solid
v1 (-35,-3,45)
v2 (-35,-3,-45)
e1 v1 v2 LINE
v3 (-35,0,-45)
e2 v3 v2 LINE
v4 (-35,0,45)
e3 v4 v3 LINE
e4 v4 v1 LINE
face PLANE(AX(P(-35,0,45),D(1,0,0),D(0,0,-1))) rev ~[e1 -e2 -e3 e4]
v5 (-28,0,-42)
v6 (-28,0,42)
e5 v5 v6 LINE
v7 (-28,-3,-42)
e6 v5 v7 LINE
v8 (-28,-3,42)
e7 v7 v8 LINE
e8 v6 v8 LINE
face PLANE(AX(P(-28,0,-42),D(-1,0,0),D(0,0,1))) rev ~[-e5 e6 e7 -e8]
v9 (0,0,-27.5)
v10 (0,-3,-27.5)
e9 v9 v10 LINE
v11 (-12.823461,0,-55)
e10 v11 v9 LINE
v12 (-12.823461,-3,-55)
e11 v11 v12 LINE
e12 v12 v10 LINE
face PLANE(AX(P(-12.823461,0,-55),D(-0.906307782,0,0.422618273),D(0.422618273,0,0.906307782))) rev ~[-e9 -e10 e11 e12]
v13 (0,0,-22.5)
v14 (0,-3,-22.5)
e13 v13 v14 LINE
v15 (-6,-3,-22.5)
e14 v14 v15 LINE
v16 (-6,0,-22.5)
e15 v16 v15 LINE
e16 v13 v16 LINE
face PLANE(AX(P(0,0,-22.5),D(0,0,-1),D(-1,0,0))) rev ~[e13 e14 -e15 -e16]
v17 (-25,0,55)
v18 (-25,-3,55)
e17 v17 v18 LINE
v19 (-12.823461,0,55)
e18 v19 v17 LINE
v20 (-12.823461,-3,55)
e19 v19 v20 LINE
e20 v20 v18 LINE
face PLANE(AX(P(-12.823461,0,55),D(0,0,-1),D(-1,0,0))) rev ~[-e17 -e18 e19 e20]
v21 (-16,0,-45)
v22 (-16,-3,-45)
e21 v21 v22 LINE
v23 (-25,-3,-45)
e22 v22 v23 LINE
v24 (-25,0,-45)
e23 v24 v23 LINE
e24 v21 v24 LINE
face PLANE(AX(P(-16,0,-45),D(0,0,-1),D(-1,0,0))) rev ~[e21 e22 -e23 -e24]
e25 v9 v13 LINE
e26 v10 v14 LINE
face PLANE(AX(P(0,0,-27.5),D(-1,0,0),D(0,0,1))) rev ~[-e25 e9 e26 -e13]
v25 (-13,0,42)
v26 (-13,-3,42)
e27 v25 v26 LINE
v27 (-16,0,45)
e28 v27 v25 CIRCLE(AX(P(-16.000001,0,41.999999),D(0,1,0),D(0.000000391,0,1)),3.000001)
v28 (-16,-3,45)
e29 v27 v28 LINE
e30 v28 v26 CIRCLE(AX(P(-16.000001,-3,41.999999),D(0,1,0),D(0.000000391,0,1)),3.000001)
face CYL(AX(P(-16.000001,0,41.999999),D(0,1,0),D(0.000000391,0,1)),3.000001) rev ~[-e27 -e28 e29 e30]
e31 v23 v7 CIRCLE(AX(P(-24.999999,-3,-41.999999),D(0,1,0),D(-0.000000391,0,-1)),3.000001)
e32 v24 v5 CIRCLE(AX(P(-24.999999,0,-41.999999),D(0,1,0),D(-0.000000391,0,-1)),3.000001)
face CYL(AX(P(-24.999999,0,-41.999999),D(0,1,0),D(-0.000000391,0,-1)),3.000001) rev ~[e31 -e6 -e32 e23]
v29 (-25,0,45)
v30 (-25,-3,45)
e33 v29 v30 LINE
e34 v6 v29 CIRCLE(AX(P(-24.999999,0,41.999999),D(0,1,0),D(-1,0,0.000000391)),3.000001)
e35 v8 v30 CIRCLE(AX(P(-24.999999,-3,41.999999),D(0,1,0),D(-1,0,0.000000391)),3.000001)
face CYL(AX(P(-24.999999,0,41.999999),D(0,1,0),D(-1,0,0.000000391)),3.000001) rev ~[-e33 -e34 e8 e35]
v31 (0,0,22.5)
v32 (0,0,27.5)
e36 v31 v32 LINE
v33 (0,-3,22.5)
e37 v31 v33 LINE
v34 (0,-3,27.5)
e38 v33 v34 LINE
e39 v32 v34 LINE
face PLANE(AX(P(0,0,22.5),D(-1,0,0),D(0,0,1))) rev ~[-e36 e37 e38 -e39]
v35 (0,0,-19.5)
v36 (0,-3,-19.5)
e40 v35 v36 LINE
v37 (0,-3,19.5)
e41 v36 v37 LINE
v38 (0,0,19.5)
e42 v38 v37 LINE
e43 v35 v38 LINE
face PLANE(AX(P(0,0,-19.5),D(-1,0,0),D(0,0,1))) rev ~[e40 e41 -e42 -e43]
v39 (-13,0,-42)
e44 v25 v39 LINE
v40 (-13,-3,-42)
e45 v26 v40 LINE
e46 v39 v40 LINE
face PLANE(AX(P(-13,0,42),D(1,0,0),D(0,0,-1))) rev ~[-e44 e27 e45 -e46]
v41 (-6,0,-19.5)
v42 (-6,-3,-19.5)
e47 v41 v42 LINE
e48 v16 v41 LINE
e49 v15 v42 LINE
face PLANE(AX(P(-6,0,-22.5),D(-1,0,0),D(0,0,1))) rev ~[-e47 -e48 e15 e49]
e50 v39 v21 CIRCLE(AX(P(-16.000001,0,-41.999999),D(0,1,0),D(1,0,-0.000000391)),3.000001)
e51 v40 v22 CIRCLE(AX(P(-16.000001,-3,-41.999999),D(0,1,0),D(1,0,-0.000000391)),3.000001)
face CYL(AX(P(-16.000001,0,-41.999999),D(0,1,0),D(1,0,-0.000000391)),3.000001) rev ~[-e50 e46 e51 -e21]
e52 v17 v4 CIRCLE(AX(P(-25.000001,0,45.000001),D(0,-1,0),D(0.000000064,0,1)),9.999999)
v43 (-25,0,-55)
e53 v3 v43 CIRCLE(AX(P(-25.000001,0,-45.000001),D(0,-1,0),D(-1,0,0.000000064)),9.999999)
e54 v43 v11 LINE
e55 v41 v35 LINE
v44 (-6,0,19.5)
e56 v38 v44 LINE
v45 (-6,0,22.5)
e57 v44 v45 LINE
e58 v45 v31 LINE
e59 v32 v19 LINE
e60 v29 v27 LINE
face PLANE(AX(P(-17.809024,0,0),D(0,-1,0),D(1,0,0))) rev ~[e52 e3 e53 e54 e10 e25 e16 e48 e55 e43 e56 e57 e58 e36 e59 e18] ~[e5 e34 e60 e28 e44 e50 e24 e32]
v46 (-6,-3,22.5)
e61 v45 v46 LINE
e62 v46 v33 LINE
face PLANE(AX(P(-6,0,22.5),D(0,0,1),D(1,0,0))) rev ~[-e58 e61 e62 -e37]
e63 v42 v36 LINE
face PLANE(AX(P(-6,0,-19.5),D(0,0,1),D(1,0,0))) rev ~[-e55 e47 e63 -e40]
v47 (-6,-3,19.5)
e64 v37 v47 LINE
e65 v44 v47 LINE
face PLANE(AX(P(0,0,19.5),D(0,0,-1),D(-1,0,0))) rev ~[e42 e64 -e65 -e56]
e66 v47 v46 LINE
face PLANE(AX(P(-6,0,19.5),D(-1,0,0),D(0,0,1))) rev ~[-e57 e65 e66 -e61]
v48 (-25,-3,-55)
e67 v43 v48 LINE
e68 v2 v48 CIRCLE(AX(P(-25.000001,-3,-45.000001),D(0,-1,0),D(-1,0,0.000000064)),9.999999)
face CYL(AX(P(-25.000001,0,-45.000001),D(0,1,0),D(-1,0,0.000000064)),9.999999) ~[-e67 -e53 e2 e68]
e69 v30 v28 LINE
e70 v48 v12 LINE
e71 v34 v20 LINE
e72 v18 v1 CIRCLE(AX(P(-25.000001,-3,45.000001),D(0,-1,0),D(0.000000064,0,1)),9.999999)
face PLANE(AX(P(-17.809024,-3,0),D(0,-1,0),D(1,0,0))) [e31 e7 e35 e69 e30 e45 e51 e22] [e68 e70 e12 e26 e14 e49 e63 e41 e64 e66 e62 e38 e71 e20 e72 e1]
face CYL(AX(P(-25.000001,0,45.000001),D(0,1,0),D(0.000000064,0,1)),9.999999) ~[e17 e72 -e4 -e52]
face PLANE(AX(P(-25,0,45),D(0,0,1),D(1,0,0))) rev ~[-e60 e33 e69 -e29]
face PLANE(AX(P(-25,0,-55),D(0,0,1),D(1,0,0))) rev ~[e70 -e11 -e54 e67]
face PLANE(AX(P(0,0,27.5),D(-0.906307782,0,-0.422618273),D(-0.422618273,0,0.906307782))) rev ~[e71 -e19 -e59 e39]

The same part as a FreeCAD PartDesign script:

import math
import FreeCAD as App
import Part
import Sketcher
Q = App.Units.Quantity

doc = App.newDocument("Part")
params = doc.addObject("Spreadsheet::Sheet", "Params")
for row, (alias, value) in enumerate([
    ("sketch1_radius", "9.999999 mm"),
    ("sketch1_radius2", "3.000001 mm"),
    ("sketch1_width", "6 mm"),
    ("sketch1_width2", "9 mm"),
    ("sketch1_height", "90 mm"),
    ("pad1_length", "3 mm"),
], start=1):
    params.set(f"A{row}", alias)
    params.set(f"B{row}", "=" + value)
    params.setAlias(f"B{row}", alias)

body = doc.addObject("PartDesign::Body", "Body")

# Sketch on XZ plane
sketch1 = body.newObject("Sketcher::SketchObject", "Sketch")
sketch1.AttachmentSupport = (doc.getObject("XZ_Plane"), [""])
sketch1.MapMode = "FlatFace"
sketch1.addGeometry([
    Part.LineSegment(App.Vector(-35, 45, 0), App.Vector(-35, -45, 0)),  # 0
    Part.ArcOfCircle(Part.Circle(App.Vector(-25, -45, 0), App.Vector(0, 0, 1), 10), math.radians(180), math.radians(270)),  # 1
    Part.LineSegment(App.Vector(-25, -55, 0), App.Vector(-12.8, -55, 0)),  # 2
    Part.LineSegment(App.Vector(-12.8, -55, 0), App.Vector(0, -27.5, 0)),  # 3
    Part.LineSegment(App.Vector(0, -27.5, 0), App.Vector(0, -22.5, 0)),  # 4
    Part.LineSegment(App.Vector(0, -22.5, 0), App.Vector(-6, -22.5, 0)),  # 5
    Part.LineSegment(App.Vector(-6, -22.5, 0), App.Vector(-6, -19.5, 0)),  # 6
    Part.LineSegment(App.Vector(-6, -19.5, 0), App.Vector(0, -19.5, 0)),  # 7
    Part.LineSegment(App.Vector(0, -19.5, 0), App.Vector(0, 19.5, 0)),  # 8
    Part.LineSegment(App.Vector(0, 19.5, 0), App.Vector(-6, 19.5, 0)),  # 9
    Part.LineSegment(App.Vector(-6, 19.5, 0), App.Vector(-6, 22.5, 0)),  # 10
    Part.LineSegment(App.Vector(-6, 22.5, 0), App.Vector(0, 22.5, 0)),  # 11
    Part.LineSegment(App.Vector(0, 22.5, 0), App.Vector(0, 27.5, 0)),  # 12
    Part.LineSegment(App.Vector(0, 27.5, 0), App.Vector(-12.8, 55, 0)),  # 13
    Part.LineSegment(App.Vector(-12.8, 55, 0), App.Vector(-25, 55, 0)),  # 14
    Part.ArcOfCircle(Part.Circle(App.Vector(-25, 45, 0), App.Vector(0, 0, 1), 10), math.radians(90), math.radians(180)),  # 15
    Part.ArcOfCircle(Part.Circle(App.Vector(-25, -42, 0), App.Vector(0, 0, 1), 3), math.radians(-180), math.radians(-90)),  # 16
    Part.LineSegment(App.Vector(-28, -42, 0), App.Vector(-28, 42, 0)),  # 17
    Part.ArcOfCircle(Part.Circle(App.Vector(-25, 42, 0), App.Vector(0, 0, 1), 3), math.radians(90), math.radians(180)),  # 18
    Part.LineSegment(App.Vector(-25, 45, 0), App.Vector(-16, 45, 0)),  # 19
    Part.ArcOfCircle(Part.Circle(App.Vector(-16, 42, 0), App.Vector(0, 0, 1), 3), math.radians(0), math.radians(90)),  # 20
    Part.LineSegment(App.Vector(-13, 42, 0), App.Vector(-13, -42, 0)),  # 21
    Part.ArcOfCircle(Part.Circle(App.Vector(-16, -42, 0), App.Vector(0, 0, 1), 3), math.radians(-90), math.radians(0)),  # 22
    Part.LineSegment(App.Vector(-16, -45, 0), App.Vector(-25, -45, 0)),  # 23
], False)
sketch1.addConstraint([
    Sketcher.Constraint("Tangent", 0, 2, 1, 1),
    Sketcher.Constraint("Tangent", 1, 2, 2, 1),
    Sketcher.Constraint("Coincident", 2, 2, 3, 1),
    Sketcher.Constraint("Coincident", 3, 2, 4, 1),
    Sketcher.Constraint("Coincident", 4, 2, 5, 1),
    Sketcher.Constraint("Coincident", 5, 2, 6, 1),
    Sketcher.Constraint("Coincident", 6, 2, 7, 1),
    Sketcher.Constraint("Coincident", 7, 2, 8, 1),
    Sketcher.Constraint("Coincident", 8, 2, 9, 1),
    Sketcher.Constraint("Coincident", 9, 2, 10, 1),
    Sketcher.Constraint("Coincident", 10, 2, 11, 1),
    Sketcher.Constraint("Coincident", 11, 2, 12, 1),
    Sketcher.Constraint("Coincident", 12, 2, 13, 1),
    Sketcher.Constraint("Coincident", 13, 2, 14, 1),
    Sketcher.Constraint("Tangent", 14, 2, 15, 1),
    Sketcher.Constraint("Tangent", 15, 2, 0, 1),
    Sketcher.Constraint("Tangent", 16, 1, 17, 1),
    Sketcher.Constraint("Tangent", 17, 2, 18, 2),
    Sketcher.Constraint("Tangent", 18, 1, 19, 1),
    Sketcher.Constraint("Tangent", 19, 2, 20, 2),
    Sketcher.Constraint("Tangent", 20, 1, 21, 1),
    Sketcher.Constraint("Tangent", 21, 2, 22, 2),
    Sketcher.Constraint("Tangent", 22, 1, 23, 1),
    Sketcher.Constraint("Tangent", 23, 2, 16, 2),
    Sketcher.Constraint("Vertical", 0),
    Sketcher.Constraint("Horizontal", 2),
    Sketcher.Constraint("Vertical", 4),
    Sketcher.Constraint("Horizontal", 5),
    Sketcher.Constraint("Vertical", 6),
    Sketcher.Constraint("Horizontal", 7),
    Sketcher.Constraint("Vertical", 8),
    Sketcher.Constraint("Horizontal", 9),
    Sketcher.Constraint("Vertical", 10),
    Sketcher.Constraint("Horizontal", 11),
    Sketcher.Constraint("Vertical", 12),
    Sketcher.Constraint("Horizontal", 14),
    Sketcher.Constraint("Vertical", 17),
    Sketcher.Constraint("Horizontal", 19),
    Sketcher.Constraint("Vertical", 21),
    Sketcher.Constraint("Horizontal", 23),
    Sketcher.Constraint("Coincident", 18, 1, 15, 3),
    Sketcher.Constraint("Coincident", 23, 2, 1, 3),
    Sketcher.Constraint("Equal", 1, 15),
    Sketcher.Constraint("Equal", 18, 20),
    Sketcher.Constraint("Equal", 20, 22),
    Sketcher.Constraint("Symmetric", 7, 2, 8, 2, -1, 1),
    Sketcher.Constraint("Symmetric", 4, 2, 11, 2, -1, 1),
    Sketcher.Constraint("Symmetric", 3, 2, 12, 2, -1),
    Sketcher.Constraint("Symmetric", 2, 2, 13, 2, -1),
    Sketcher.Constraint("Vertical", 6, 2, 9, 2),
    Sketcher.Constraint("Radius", 1, Q("9.999999 mm")),
    Sketcher.Constraint("Radius", 16, Q("3.000001 mm")),
    Sketcher.Constraint("DistanceX", 5, 2, 5, 1, Q("6 mm")),
    Sketcher.Constraint("DistanceX", 19, 1, 19, 2, Q("9 mm")),
    Sketcher.Constraint("DistanceY", 0, 2, 0, 1, Q("90 mm")),
    Sketcher.Constraint("DistanceY", 4, 1, 4, 2, Q("5 mm")),
    Sketcher.Constraint("DistanceY", 6, 1, 6, 2, Q("3 mm")),
    Sketcher.Constraint("DistanceY", 8, 1, 8, 2, Q("39 mm")),
    Sketcher.Constraint("Angle", 3, Q("64.999999 deg")),
    Sketcher.Constraint("DistanceX", 1, 3, -1, 1, Q("25.000001 mm")),
])
sketch1.setExpression("Constraints[50]", "Params.sketch1_radius")
sketch1.setExpression("Constraints[51]", "Params.sketch1_radius2")
sketch1.setExpression("Constraints[52]", "Params.sketch1_width")
sketch1.setExpression("Constraints[53]", "Params.sketch1_width2")
sketch1.setExpression("Constraints[54]", "Params.sketch1_height")
pad1 = body.newObject("PartDesign::Pad", "Pad")
pad1.Profile = sketch1
pad1.setExpression("Length", "Params.pad1_length")

doc.recompute()
